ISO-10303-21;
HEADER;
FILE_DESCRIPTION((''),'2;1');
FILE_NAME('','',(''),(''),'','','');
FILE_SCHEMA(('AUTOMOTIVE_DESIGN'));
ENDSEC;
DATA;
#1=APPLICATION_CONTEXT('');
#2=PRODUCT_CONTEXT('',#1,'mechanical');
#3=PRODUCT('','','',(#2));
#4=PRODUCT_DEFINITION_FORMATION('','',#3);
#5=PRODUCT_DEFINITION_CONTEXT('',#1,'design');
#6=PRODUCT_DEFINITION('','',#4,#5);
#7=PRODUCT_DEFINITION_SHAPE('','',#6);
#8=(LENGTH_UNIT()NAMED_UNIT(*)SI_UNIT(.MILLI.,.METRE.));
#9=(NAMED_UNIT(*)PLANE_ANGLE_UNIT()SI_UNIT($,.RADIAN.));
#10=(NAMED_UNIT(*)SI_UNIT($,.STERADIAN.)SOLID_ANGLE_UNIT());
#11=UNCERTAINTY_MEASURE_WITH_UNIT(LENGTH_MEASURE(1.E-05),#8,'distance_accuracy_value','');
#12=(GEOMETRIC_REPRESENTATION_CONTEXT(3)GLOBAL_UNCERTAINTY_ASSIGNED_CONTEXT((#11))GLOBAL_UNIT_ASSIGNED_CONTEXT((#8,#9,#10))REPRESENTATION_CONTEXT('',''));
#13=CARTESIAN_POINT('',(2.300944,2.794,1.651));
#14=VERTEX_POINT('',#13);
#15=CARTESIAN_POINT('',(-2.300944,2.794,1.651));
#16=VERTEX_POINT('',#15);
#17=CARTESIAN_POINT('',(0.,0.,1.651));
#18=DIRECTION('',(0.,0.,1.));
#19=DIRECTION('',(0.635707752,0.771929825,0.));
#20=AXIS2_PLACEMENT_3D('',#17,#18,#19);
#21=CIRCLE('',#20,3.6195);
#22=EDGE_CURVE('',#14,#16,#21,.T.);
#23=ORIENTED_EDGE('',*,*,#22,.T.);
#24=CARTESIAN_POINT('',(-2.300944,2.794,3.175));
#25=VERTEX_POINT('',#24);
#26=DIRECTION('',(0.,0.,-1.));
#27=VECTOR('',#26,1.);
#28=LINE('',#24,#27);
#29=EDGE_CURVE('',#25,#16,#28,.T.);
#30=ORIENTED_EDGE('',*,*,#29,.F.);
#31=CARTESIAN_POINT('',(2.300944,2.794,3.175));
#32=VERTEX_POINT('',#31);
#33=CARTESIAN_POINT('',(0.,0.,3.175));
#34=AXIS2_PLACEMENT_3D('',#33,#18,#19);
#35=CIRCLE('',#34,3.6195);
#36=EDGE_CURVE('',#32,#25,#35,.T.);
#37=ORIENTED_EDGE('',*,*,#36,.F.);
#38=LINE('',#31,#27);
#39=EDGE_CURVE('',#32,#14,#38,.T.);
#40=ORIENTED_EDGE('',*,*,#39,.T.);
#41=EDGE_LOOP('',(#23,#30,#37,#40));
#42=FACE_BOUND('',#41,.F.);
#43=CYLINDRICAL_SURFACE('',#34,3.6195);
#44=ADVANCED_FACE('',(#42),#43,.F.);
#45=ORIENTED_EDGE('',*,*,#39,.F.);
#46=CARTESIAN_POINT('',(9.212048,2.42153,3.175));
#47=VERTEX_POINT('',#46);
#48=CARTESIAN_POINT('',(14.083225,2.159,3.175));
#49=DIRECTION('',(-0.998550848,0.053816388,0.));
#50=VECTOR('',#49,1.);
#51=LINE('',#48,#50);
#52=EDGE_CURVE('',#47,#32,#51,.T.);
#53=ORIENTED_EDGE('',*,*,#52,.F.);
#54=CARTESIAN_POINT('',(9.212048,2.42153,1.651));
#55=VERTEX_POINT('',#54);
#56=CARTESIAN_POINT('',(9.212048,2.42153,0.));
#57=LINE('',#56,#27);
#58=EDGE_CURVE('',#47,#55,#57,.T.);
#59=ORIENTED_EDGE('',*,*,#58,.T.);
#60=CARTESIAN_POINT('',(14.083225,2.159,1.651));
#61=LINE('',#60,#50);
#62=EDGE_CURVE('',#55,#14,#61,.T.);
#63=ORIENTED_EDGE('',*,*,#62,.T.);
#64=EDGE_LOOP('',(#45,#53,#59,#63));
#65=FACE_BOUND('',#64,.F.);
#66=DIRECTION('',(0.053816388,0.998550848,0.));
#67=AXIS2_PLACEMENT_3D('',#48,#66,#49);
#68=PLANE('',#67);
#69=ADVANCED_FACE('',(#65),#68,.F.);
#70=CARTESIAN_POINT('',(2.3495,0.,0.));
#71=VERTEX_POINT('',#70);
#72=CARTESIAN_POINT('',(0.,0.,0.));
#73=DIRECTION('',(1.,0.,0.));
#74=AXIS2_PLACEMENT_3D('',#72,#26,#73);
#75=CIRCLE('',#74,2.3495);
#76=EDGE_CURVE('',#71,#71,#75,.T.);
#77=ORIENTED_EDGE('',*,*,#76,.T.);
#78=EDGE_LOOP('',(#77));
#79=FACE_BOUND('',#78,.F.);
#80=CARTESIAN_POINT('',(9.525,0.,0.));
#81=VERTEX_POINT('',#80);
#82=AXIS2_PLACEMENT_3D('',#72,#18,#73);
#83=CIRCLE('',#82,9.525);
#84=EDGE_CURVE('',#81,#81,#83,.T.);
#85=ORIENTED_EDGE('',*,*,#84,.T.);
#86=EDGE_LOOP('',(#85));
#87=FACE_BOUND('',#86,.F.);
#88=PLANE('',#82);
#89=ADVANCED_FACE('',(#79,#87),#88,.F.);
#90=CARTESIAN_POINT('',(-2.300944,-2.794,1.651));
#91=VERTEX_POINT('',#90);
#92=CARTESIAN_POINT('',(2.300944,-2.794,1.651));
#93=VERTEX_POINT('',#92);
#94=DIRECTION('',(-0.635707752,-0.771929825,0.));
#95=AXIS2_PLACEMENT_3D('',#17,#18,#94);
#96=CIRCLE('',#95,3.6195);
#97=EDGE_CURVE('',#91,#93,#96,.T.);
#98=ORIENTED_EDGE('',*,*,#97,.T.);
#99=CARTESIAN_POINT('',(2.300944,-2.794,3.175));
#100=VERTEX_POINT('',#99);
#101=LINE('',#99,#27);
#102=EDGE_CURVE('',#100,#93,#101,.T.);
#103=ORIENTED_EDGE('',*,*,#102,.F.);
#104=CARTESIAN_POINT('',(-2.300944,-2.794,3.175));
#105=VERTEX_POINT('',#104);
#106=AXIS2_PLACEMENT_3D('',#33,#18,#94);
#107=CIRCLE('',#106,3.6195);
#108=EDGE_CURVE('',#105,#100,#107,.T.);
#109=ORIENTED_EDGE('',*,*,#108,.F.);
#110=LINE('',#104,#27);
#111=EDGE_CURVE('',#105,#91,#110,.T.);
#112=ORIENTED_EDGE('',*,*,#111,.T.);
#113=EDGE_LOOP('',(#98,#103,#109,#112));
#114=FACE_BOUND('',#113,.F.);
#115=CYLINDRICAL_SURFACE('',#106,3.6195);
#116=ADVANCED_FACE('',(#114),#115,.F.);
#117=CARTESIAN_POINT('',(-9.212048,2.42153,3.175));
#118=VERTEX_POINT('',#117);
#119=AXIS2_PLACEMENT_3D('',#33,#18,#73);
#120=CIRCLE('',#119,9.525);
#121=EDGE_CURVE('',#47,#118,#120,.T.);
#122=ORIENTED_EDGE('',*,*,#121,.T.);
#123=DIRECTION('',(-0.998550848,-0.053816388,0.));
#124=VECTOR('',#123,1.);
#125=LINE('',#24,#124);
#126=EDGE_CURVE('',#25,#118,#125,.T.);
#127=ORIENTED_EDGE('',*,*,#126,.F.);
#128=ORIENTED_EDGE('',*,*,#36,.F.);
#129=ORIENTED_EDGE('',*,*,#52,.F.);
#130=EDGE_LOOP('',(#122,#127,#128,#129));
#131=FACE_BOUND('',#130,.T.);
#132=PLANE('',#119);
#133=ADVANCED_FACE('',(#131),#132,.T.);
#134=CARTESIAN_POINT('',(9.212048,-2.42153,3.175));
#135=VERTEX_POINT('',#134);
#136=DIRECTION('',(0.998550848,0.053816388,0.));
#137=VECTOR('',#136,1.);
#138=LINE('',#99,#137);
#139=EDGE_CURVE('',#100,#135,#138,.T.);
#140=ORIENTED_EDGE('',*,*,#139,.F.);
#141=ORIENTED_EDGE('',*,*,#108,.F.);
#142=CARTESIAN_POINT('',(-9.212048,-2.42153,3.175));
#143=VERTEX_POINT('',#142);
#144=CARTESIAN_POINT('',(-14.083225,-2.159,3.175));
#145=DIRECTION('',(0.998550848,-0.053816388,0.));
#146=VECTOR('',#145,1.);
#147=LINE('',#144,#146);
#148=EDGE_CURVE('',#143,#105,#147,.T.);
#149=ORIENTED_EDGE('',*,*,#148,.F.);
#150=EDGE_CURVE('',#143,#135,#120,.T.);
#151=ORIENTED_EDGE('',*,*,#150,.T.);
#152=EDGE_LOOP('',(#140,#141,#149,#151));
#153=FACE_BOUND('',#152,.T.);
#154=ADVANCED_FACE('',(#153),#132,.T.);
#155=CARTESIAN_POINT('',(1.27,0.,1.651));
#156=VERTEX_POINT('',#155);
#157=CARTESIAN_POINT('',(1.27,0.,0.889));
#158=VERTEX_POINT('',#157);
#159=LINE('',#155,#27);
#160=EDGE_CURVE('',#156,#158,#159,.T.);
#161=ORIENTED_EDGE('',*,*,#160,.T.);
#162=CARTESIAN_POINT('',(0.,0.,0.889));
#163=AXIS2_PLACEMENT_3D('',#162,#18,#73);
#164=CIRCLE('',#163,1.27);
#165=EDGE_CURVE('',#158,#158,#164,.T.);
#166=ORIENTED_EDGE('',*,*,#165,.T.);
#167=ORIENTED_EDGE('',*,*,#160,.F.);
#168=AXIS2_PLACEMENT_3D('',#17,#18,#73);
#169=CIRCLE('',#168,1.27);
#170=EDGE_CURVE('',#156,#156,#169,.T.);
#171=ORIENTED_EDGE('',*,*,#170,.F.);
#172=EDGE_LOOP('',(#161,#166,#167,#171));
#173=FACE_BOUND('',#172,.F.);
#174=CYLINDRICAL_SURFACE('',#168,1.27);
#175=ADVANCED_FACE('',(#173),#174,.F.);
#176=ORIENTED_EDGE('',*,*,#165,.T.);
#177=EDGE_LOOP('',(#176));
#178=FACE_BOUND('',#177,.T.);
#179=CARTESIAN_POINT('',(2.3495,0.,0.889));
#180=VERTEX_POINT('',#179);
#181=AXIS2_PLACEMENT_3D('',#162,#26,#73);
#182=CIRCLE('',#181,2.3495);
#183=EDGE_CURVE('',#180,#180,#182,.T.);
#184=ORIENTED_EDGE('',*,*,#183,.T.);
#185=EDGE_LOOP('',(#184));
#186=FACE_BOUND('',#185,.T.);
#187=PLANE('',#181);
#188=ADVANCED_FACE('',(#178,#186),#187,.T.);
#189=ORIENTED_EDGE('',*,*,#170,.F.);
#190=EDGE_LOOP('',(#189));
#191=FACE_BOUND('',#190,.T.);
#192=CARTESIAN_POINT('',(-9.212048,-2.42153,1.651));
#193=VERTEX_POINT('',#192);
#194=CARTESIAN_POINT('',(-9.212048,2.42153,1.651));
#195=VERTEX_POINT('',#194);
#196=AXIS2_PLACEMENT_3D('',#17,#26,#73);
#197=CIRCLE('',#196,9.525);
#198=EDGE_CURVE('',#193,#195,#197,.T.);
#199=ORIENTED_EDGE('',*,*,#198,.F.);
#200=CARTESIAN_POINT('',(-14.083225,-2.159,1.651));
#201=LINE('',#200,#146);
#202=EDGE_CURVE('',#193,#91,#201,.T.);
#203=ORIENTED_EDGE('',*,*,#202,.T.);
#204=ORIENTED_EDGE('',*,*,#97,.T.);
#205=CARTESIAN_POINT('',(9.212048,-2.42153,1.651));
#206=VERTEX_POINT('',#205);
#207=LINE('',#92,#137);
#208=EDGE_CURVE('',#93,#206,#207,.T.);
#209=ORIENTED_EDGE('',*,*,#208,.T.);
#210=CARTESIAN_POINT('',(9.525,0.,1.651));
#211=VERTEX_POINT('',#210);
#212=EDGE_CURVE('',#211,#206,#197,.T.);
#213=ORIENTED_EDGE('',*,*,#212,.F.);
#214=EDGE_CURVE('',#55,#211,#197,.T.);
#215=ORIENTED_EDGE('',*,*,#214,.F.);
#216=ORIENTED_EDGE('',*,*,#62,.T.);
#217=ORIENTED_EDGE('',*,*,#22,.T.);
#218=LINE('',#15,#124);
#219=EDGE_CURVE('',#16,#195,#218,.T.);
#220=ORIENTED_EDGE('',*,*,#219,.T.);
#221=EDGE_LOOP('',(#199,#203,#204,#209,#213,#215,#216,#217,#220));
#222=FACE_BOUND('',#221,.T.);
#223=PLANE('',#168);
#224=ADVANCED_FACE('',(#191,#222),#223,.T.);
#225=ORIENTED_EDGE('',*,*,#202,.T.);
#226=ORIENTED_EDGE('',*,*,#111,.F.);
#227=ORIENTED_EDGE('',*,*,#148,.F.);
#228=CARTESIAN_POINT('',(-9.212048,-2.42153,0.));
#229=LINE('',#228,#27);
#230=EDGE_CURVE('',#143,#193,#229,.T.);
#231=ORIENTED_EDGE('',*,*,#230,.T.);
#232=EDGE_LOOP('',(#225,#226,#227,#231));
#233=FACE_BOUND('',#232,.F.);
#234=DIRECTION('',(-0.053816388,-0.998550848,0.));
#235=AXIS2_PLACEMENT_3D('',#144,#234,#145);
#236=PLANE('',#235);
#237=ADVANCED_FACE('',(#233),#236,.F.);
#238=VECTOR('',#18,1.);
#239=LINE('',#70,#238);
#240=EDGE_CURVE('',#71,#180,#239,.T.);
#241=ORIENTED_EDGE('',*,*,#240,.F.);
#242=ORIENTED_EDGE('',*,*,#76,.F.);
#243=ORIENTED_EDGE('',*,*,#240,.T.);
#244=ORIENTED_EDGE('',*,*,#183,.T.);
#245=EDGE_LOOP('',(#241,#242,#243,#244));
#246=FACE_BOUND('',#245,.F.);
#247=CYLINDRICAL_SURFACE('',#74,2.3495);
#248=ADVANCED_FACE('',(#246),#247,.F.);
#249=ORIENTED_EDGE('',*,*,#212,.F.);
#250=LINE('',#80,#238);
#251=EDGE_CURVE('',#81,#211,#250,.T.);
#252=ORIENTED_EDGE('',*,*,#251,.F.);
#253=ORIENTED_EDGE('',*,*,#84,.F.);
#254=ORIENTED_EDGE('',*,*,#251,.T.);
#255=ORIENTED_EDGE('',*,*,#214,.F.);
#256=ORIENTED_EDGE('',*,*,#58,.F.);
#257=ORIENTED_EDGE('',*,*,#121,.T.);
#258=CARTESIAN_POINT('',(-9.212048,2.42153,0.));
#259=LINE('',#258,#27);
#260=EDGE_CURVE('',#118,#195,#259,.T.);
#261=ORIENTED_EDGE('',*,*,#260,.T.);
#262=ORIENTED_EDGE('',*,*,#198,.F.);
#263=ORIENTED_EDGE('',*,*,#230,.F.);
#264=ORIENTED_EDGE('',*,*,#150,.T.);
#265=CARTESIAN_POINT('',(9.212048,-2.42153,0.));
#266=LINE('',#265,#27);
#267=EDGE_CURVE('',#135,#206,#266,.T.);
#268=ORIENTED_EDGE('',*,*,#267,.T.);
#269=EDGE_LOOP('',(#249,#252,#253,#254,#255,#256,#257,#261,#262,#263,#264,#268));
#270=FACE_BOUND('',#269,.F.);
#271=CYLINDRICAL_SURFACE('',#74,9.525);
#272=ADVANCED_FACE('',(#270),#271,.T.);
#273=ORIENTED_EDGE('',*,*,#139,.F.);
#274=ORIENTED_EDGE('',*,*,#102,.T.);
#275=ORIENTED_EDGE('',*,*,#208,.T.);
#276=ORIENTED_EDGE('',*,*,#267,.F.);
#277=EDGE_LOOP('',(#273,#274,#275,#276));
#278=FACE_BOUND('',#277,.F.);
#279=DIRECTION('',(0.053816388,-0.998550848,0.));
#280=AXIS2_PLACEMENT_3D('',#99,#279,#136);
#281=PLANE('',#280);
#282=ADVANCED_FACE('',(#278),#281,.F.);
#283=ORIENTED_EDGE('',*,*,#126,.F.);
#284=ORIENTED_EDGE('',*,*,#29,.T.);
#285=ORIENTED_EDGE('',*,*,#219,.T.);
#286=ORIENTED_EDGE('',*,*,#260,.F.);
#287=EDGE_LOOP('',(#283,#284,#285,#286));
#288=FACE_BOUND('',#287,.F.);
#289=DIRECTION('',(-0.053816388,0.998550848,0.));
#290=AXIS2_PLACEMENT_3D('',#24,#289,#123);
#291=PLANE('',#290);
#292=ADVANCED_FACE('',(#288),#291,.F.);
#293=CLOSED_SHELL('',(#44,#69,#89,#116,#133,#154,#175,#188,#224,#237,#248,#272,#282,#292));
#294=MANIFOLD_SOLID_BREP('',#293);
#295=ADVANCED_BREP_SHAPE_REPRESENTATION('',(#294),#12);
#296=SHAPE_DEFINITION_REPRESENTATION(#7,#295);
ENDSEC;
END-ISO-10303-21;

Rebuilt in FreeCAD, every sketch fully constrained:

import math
import FreeCAD as App
import Part
import Sketcher
Q = App.Units.Quantity

doc = App.newDocument("Part")
body = doc.addObject("PartDesign::Body", "Body")

sketch1 = body.newObject("Sketcher::SketchObject", "Sketch")
sketch1.AttachmentSupport = (doc.getObject("XY_Plane"), [""])
sketch1.MapMode = "FlatFace"
sketch1.addGeometry(Part.Circle(App.Vector(0, 0, 0), App.Vector(0, 0, 1), 10), False)
sketch1.addConstraint([
    Sketcher.Constraint("Coincident", 0, 3, -1, 1),
    Sketcher.Constraint("Diameter", 0, Q("0.75 in")),
])
pad1 = body.newObject("PartDesign::Pad", "Pad")
pad1.Profile = sketch1
pad1.Length = Q("0.125 in")

sketch2 = body.newObject("Sketcher::SketchObject", "Sketch001")
sketch2.AttachmentSupport = (doc.getObject("XY_Plane"), [""])
sketch2.MapMode = "FlatFace"
sketch2.AttachmentOffset = App.Placement(App.Vector(0, 0, 0.125 * 25.4), App.Rotation())
sketch2.addGeometry([
    Part.LineSegment(App.Vector(2.3, -2.8, 0), App.Vector(14.1, -2.2, 0)),
    Part.ArcOfCircle(Part.Circle(App.Vector(14, 0, 0), App.Vector(0, 0, 1), 2.2), math.radians(-87), math.radians(87)),
    Part.LineSegment(App.Vector(14.1, 2.2, 0), App.Vector(2.3, 2.8, 0)),
    Part.ArcOfCircle(Part.Circle(App.Vector(0, 0, 0), App.Vector(0, 0, 1), 3.6), math.radians(51), math.radians(129)),
    Part.LineSegment(App.Vector(-2.3, 2.8, 0), App.Vector(-14.1, 2.2, 0)),
    Part.ArcOfCircle(Part.Circle(App.Vector(-14, 0, 0), App.Vector(0, 0, 1), 2.2), math.radians(93), math.radians(267)),
    Part.LineSegment(App.Vector(-14.1, -2.2, 0), App.Vector(-2.3, -2.8, 0)),
    Part.ArcOfCircle(Part.Circle(App.Vector(0, 0, 0), App.Vector(0, 0, 1), 3.6), math.radians(-129), math.radians(-51)),
], False)
sketch2.addConstraint([
    Sketcher.Constraint("Tangent", 0, 2, 1, 1),
    Sketcher.Constraint("Tangent", 1, 2, 2, 1),
    Sketcher.Constraint("Coincident", 2, 2, 3, 1),
    Sketcher.Constraint("Coincident", 3, 2, 4, 1),
    Sketcher.Constraint("Tangent", 4, 2, 5, 1),
    Sketcher.Constraint("Tangent", 5, 2, 6, 1),
    Sketcher.Constraint("Coincident", 6, 2, 7, 1),
    Sketcher.Constraint("Coincident", 7, 2, 0, 1),
    Sketcher.Constraint("Coincident", 3, 3, -1, 1),
    Sketcher.Constraint("Coincident", 7, 3, -1, 1),
    Sketcher.Constraint("Equal", 1, 5),
    Sketcher.Constraint("Equal", 3, 7),
    Sketcher.Constraint("Symmetric", 1, 3, 5, 3, -1, 1),
    Sketcher.Constraint("Symmetric", 1, 2, 4, 2, -2),
    Sketcher.Constraint("Parallel", 0, 4),
    Sketcher.Constraint("Parallel", 2, 6),
    Sketcher.Constraint("Radius", 3, Q("0.1425 in")),
    Sketcher.Constraint("DistanceY", -1, 1, 2, 2, Q("0.11 in")),
    Sketcher.Constraint("DistanceY", 0, 2, 1, 2, Q("0.17 in")),
    Sketcher.Constraint("Distance", 0, Q("11.79938 mm")),
])
pocket1 = body.newObject("PartDesign::Pocket", "Pocket")
pocket1.Profile = sketch2
pocket1.Length = Q("0.06 in")

sketch3 = body.newObject("Sketcher::SketchObject", "Sketch002")
sketch3.AttachmentSupport = (doc.getObject("XY_Plane"), [""])
sketch3.MapMode = "FlatFace"
sketch3.AttachmentOffset = App.Placement(App.Vector(0, 0, 0.065 * 25.4), App.Rotation())
sketch3.addGeometry(Part.Circle(App.Vector(0, 0, 0), App.Vector(0, 0, 1), 1.3), False)
sketch3.addConstraint([
    Sketcher.Constraint("Coincident", 0, 3, -1, 1),
    Sketcher.Constraint("Diameter", 0, Q("0.1 in")),
])
pocket2 = body.newObject("PartDesign::Pocket", "Pocket001")
pocket2.Profile = sketch3
pocket2.Length = Q("1 in")

sketch4 = body.newObject("Sketcher::SketchObject", "Sketch003")
sketch4.AttachmentSupport = (doc.getObject("XY_Plane"), [""])
sketch4.MapMode = "FlatFace"
sketch4.addGeometry(Part.Circle(App.Vector(0, 0, 0), App.Vector(0, 0, 1), 2.3), False)
sketch4.addConstraint([
    Sketcher.Constraint("Coincident", 0, 3, -1, 1),
    Sketcher.Constraint("Diameter", 0, Q("0.185 in")),
])
pocket3 = body.newObject("PartDesign::Pocket", "Pocket002")
pocket3.Profile = sketch4
pocket3.Length = Q("0.035 in")
pocket3.Reversed = True

doc.recompute()
